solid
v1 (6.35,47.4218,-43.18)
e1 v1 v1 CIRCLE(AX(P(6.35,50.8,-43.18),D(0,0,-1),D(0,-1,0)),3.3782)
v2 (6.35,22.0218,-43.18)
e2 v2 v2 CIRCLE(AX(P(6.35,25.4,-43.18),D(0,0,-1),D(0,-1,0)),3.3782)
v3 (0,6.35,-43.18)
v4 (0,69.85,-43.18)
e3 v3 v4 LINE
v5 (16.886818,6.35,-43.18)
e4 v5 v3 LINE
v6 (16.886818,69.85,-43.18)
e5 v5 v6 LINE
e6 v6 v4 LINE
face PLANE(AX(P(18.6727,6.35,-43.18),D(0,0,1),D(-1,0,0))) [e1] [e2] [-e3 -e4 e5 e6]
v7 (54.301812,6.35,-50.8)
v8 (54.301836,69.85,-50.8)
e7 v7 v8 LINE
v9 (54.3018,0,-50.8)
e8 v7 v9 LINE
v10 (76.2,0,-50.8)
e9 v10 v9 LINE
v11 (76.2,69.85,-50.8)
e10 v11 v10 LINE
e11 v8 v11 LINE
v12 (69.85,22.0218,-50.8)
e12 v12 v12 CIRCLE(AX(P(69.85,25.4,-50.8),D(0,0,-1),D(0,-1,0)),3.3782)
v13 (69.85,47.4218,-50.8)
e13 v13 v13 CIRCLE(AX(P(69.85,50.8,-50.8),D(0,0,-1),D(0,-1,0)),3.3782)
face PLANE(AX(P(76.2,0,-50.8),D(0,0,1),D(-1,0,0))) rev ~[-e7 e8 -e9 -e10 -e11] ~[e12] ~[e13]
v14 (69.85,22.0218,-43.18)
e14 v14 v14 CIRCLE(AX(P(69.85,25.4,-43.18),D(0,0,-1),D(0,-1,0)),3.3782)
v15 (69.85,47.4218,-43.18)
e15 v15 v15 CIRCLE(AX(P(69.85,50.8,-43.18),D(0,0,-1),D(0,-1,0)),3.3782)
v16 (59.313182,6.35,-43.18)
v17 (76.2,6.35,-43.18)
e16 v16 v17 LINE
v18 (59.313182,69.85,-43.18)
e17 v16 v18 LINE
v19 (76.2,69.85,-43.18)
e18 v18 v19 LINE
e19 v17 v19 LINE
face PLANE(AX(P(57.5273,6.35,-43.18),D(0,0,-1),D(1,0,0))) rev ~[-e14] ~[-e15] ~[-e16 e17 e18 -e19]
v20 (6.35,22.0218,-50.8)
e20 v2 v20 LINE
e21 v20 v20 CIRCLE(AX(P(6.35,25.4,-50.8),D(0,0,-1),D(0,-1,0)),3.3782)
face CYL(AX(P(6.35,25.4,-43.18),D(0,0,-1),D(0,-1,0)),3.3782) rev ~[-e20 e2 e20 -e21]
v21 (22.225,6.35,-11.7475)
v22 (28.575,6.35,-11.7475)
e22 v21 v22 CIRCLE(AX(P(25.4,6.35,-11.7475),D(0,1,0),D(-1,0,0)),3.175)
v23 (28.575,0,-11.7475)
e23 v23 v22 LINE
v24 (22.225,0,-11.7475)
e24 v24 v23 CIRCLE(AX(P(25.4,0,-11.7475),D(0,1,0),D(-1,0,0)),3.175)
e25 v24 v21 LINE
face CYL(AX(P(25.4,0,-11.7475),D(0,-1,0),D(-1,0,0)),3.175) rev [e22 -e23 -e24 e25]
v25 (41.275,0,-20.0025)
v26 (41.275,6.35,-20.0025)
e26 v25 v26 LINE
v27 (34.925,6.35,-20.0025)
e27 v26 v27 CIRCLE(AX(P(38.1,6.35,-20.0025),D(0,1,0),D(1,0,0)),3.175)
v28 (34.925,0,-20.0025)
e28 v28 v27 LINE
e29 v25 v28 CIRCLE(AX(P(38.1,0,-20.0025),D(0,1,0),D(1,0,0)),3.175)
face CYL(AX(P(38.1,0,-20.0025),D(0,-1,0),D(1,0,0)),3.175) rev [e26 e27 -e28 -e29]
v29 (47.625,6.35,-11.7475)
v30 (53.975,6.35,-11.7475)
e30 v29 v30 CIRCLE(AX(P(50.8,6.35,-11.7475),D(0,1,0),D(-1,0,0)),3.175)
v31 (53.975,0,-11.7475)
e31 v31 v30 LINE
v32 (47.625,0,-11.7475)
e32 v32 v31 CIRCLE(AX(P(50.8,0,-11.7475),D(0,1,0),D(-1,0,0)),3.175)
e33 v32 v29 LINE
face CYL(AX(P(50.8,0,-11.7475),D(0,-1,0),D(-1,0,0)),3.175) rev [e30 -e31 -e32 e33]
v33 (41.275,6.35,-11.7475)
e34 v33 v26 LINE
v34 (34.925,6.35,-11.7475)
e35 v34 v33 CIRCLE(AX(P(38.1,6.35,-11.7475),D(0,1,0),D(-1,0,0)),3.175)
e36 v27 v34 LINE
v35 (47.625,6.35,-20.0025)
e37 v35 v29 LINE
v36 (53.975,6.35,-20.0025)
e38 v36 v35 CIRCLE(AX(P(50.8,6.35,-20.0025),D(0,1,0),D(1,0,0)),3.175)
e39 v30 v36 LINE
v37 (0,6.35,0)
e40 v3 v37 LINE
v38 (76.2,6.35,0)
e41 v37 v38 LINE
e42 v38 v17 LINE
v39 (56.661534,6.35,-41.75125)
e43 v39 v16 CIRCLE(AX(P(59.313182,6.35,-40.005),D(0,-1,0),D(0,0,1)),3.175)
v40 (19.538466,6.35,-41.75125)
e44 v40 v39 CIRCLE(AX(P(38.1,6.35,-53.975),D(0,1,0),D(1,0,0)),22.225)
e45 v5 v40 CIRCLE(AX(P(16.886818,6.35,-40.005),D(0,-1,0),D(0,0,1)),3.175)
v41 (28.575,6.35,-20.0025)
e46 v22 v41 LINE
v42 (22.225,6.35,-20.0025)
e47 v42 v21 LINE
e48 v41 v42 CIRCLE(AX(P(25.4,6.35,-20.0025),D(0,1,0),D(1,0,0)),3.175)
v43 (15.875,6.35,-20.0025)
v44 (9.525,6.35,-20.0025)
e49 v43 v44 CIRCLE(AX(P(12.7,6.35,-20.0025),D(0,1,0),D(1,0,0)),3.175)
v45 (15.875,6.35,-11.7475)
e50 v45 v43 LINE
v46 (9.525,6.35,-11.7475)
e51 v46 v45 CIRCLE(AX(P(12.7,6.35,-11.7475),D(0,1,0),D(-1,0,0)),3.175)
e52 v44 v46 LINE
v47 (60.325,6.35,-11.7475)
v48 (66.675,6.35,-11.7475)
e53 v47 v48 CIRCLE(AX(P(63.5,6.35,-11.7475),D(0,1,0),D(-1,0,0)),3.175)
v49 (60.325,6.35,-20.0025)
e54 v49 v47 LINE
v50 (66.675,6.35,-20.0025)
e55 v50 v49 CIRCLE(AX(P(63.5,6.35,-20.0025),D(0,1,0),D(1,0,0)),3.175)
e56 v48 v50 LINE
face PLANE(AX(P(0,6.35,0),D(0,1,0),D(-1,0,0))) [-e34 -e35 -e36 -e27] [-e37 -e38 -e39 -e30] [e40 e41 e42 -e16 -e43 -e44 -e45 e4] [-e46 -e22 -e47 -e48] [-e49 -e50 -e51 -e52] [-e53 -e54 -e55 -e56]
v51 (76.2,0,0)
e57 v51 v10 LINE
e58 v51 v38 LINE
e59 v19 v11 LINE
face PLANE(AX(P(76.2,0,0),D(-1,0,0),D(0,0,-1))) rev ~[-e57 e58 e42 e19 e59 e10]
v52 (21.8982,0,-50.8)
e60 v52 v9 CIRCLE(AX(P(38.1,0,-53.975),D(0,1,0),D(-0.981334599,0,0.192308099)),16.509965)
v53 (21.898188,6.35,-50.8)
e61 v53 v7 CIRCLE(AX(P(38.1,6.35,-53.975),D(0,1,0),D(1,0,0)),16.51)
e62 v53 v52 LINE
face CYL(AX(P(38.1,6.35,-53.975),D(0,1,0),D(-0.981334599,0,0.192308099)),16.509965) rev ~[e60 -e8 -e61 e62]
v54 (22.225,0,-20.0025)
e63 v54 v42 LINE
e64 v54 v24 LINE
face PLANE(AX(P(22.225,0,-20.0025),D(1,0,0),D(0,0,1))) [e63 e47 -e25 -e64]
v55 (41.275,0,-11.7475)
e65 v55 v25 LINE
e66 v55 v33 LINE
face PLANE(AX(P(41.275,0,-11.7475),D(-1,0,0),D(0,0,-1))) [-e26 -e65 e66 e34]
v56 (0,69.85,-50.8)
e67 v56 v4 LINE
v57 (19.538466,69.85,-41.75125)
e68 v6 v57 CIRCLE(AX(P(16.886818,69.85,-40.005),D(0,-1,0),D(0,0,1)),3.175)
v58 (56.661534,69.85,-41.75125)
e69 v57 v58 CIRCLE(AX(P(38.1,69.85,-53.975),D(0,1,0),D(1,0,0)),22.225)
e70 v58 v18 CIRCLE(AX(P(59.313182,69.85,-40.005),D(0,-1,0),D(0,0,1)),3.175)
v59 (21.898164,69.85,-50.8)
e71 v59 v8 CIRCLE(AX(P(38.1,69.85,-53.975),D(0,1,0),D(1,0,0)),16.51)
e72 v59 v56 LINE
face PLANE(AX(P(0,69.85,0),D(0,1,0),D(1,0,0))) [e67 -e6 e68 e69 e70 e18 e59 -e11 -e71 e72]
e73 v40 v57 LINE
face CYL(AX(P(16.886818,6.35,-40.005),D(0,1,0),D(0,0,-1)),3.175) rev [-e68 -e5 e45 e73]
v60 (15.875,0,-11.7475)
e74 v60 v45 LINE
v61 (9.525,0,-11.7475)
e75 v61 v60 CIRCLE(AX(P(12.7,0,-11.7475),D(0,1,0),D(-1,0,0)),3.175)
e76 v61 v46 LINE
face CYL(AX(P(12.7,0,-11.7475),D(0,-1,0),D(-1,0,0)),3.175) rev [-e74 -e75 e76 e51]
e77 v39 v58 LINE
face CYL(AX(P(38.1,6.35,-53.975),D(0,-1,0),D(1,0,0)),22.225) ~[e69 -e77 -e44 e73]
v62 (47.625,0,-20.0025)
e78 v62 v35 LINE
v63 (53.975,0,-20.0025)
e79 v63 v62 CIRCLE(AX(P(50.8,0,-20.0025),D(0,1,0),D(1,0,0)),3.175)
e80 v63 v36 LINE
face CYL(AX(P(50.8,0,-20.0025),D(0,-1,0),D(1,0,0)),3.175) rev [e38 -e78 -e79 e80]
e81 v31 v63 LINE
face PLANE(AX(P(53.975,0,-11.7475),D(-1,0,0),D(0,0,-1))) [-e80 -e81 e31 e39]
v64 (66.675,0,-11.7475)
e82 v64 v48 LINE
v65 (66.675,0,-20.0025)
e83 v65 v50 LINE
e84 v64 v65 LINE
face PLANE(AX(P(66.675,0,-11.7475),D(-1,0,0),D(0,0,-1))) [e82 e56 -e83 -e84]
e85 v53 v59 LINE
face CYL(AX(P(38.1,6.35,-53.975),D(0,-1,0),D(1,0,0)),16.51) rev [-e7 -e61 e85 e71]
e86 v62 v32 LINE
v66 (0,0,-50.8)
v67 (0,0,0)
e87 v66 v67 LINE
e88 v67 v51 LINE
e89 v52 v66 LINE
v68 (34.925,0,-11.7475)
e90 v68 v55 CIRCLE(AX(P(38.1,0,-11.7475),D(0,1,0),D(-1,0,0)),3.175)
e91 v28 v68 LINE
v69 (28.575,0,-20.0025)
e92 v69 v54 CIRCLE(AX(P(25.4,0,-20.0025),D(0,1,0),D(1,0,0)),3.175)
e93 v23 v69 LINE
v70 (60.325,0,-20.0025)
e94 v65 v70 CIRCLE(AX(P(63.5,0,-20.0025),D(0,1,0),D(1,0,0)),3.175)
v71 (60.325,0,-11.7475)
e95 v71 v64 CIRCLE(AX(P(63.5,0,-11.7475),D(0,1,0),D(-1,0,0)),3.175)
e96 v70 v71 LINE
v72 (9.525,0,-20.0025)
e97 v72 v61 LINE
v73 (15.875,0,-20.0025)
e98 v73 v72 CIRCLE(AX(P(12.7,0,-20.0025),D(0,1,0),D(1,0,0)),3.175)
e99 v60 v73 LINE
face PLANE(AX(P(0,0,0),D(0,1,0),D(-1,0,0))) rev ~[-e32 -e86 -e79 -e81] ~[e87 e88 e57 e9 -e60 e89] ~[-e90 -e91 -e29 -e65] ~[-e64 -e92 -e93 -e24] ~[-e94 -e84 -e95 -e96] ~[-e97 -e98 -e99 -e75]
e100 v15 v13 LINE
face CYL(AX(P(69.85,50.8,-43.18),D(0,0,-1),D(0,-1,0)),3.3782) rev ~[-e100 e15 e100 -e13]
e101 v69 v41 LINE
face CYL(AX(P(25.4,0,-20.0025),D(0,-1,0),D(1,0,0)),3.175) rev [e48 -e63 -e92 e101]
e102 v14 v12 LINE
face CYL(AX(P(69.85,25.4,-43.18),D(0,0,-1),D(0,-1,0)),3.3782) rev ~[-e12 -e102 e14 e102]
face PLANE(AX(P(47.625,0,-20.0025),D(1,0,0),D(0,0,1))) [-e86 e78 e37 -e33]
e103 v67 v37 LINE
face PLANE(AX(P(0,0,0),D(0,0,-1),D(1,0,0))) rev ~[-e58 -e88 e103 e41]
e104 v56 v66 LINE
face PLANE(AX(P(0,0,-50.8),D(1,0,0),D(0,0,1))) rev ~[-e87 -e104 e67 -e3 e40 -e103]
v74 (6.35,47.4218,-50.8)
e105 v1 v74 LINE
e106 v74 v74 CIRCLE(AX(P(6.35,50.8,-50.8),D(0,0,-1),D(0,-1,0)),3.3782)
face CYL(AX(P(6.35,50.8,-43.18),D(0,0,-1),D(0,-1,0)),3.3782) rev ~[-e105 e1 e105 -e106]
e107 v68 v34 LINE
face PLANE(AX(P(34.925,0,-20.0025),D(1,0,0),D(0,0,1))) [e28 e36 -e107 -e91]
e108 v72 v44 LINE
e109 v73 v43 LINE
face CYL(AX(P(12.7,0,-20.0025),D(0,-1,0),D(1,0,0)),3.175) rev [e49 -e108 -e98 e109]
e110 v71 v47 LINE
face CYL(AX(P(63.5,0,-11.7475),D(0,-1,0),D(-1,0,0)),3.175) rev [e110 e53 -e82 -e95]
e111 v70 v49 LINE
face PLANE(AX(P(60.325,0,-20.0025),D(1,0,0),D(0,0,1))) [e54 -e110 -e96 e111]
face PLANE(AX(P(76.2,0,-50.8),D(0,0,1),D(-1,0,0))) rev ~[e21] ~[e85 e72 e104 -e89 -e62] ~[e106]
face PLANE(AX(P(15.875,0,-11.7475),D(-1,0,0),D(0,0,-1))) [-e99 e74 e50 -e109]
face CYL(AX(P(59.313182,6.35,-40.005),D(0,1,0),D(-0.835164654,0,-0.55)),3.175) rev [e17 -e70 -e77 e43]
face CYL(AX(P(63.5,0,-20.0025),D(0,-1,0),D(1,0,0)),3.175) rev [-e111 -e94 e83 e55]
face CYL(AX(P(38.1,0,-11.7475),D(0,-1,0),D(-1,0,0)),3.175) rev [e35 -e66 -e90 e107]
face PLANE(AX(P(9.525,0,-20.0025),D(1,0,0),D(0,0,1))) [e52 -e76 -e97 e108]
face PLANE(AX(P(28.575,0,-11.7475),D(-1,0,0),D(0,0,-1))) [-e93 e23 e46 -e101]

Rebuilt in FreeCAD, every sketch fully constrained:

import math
import FreeCAD as App
import Part
import Sketcher
from FreeCAD import Vector
Q = App.Units.Quantity


def edges_at(feature, points):
    """Names of the edges that pass closest to the given points."""
    edges = feature.Shape.Edges
    near = lambda p: min(range(len(edges)), key=lambda i: edges[i].distToShape(Part.Vertex(*p))[0])
    return sorted({f"Edge{near(p) + 1}" for p in points})


def add_polygon(sketch, points):
    """Adds a closed chain of lines whose ends are joined by coincident constraints."""
    first, n = sketch.GeometryCount, len(points)
    for a, b in zip(points, points[1:] + points[:1]):
        sketch.addGeometry(Part.LineSegment(App.Vector(*a, 0), App.Vector(*b, 0)), False)
    for i in range(n):
        sketch.addConstraint(Sketcher.Constraint("Coincident", first + i, 2, first + (i + 1) % n, 1))

doc = App.newDocument("Part")
body = doc.addObject("PartDesign::Body", "Body")

sketch1 = doc.addObject("Sketcher::SketchObject", "Sketch")
body.addObject(sketch1)
sketch1.AttachmentSupport = (doc.XZ_Plane, [""])
sketch1.MapMode = "FlatFace"
add_polygon(sketch1, [(0, -50.8), (0, 0), (76.2, 0), (76.2, -50.8)])
sketch1.addGeometry(Part.LineSegment(Vector(66.7, -20, 0), Vector(66.7, -11.7, 0)), False)
sketch1.addGeometry(Part.ArcOfCircle(Part.Circle(Vector(63.5, -11.7, 0), Vector(0, 0, 1), 3.2), math.radians(0), math.radians(180)), False)
sketch1.addGeometry(Part.LineSegment(Vector(60.3, -11.7, 0), Vector(60.3, -20, 0)), False)
sketch1.addGeometry(Part.ArcOfCircle(Part.Circle(Vector(63.5, -20, 0), Vector(0, 0, 1), 3.2), math.radians(180), math.radians(360)), False)
sketch1.addGeometry(Part.LineSegment(Vector(54, -20, 0), Vector(54, -11.7, 0)), False)
sketch1.addGeometry(Part.ArcOfCircle(Part.Circle(Vector(50.8, -11.7, 0), Vector(0, 0, 1), 3.2), math.radians(0), math.radians(180)), False)
sketch1.addGeometry(Part.LineSegment(Vector(47.6, -11.7, 0), Vector(47.6, -20, 0)), False)
sketch1.addGeometry(Part.ArcOfCircle(Part.Circle(Vector(50.8, -20, 0), Vector(0, 0, 1), 3.2), math.radians(180), math.radians(360)), False)
sketch1.addGeometry(Part.LineSegment(Vector(41.3, -20, 0), Vector(41.3, -11.7, 0)), False)
sketch1.addGeometry(Part.ArcOfCircle(Part.Circle(Vector(38.1, -11.7, 0), Vector(0, 0, 1), 3.2), math.radians(0), math.radians(180)), False)
sketch1.addGeometry(Part.LineSegment(Vector(34.9, -11.7, 0), Vector(34.9, -20, 0)), False)
sketch1.addGeometry(Part.ArcOfCircle(Part.Circle(Vector(38.1, -20, 0), Vector(0, 0, 1), 3.2), math.radians(180), math.radians(360)), False)
sketch1.addGeometry(Part.LineSegment(Vector(28.6, -20, 0), Vector(28.6, -11.7, 0)), False)
sketch1.addGeometry(Part.ArcOfCircle(Part.Circle(Vector(25.4, -11.7, 0), Vector(0, 0, 1), 3.2), math.radians(0), math.radians(180)), False)
sketch1.addGeometry(Part.LineSegment(Vector(22.2, -11.7, 0), Vector(22.2, -20, 0)), False)
sketch1.addGeometry(Part.ArcOfCircle(Part.Circle(Vector(25.4, -20, 0), Vector(0, 0, 1), 3.2), math.radians(180), math.radians(360)), False)
sketch1.addGeometry(Part.LineSegment(Vector(15.9, -20, 0), Vector(15.9, -11.7, 0)), False)
sketch1.addGeometry(Part.ArcOfCircle(Part.Circle(Vector(12.7, -11.7, 0), Vector(0, 0, 1), 3.2), math.radians(0), math.radians(180)), False)
sketch1.addGeometry(Part.LineSegment(Vector(9.5, -11.7, 0), Vector(9.5, -20, 0)), False)
sketch1.addGeometry(Part.ArcOfCircle(Part.Circle(Vector(12.7, -20, 0), Vector(0, 0, 1), 3.2), math.radians(180), math.radians(360)), False)
sketch1.addConstraint([
    Sketcher.Constraint("Tangent", 4, 2, 5, 1),
    Sketcher.Constraint("Tangent", 5, 2, 6, 1),
    Sketcher.Constraint("Tangent", 6, 2, 7, 1),
    Sketcher.Constraint("Tangent", 7, 2, 4, 1),
    Sketcher.Constraint("Tangent", 8, 2, 9, 1),
    Sketcher.Constraint("Tangent", 9, 2, 10, 1),
    Sketcher.Constraint("Tangent", 10, 2, 11, 1),
    Sketcher.Constraint("Tangent", 11, 2, 8, 1),
    Sketcher.Constraint("Tangent", 12, 2, 13, 1),
    Sketcher.Constraint("Tangent", 13, 2, 14, 1),
    Sketcher.Constraint("Tangent", 14, 2, 15, 1),
    Sketcher.Constraint("Tangent", 15, 2, 12, 1),
    Sketcher.Constraint("Tangent", 16, 2, 17, 1),
    Sketcher.Constraint("Tangent", 17, 2, 18, 1),
    Sketcher.Constraint("Tangent", 18, 2, 19, 1),
    Sketcher.Constraint("Tangent", 19, 2, 16, 1),
    Sketcher.Constraint("Tangent", 20, 2, 21, 1),
    Sketcher.Constraint("Tangent", 21, 2, 22, 1),
    Sketcher.Constraint("Tangent", 22, 2, 23, 1),
    Sketcher.Constraint("Tangent", 23, 2, 20, 1),
    Sketcher.Constraint("Vertical", 0),
    Sketcher.Constraint("Horizontal", 1),
    Sketcher.Constraint("Vertical", 2),
    Sketcher.Constraint("Horizontal", 3),
    Sketcher.Constraint("Vertical", 4),
    Sketcher.Constraint("Vertical", 6),
    Sketcher.Constraint("Vertical", 8),
    Sketcher.Constraint("Vertical", 10),
    Sketcher.Constraint("Vertical", 12),
    Sketcher.Constraint("Vertical", 14),
    Sketcher.Constraint("Vertical", 16),
    Sketcher.Constraint("Vertical", 18),
    Sketcher.Constraint("Vertical", 20),
    Sketcher.Constraint("Vertical", 22),
    Sketcher.Constraint("Coincident", 0, 2, -1, 1),
    Sketcher.Constraint("Equal", 7, 9),
    Sketcher.Constraint("Equal", 11, 13),
    Sketcher.Constraint("Equal", 15, 17),
    Sketcher.Constraint("Equal", 19, 21),
    Sketcher.Constraint("Horizontal", 5, 3, 9, 3),
    Sketcher.Constraint("Horizontal", 7, 3, 11, 3),
    Sketcher.Constraint("Horizontal", 9, 3, 13, 3),
    Sketcher.Constraint("Horizontal", 11, 3, 15, 3),
    Sketcher.Constraint("Horizontal", 13, 3, 17, 3),
    Sketcher.Constraint("Horizontal", 15, 3, 19, 3),
    Sketcher.Constraint("Horizontal", 17, 3, 21, 3),
    Sketcher.Constraint("Horizontal", 19, 3, 23, 3),
    Sketcher.Constraint("DistanceX", 1, 1, 1, 2, Q("3 in")),
    Sketcher.Constraint("DistanceY", 0, 1, 0, 2, Q("2 in")),
    Sketcher.Constraint("DistanceX", -1, 1, 9, 3, Q("2 in")),
    Sketcher.Constraint("DistanceX", -1, 1, 17, 3, Q("1 in")),
    Sketcher.Constraint("Radius", 5, Q("0.125 in")),
    Sketcher.Constraint("DistanceX", 13, 3, 5, 3, Q("1 in")),
    Sketcher.Constraint("DistanceX", 21, 3, 13, 3, Q("1 in")),
    Sketcher.Constraint("DistanceX", -1, 1, 21, 3, Q("0.5 in")),
    Sketcher.Constraint("DistanceY", 4, 1, 4, 2, Q("0.325 in")),
    Sketcher.Constraint("DistanceY", 5, 3, -1, 1, Q("0.4625 in")),
])
pad1 = doc.addObject("PartDesign::Pad", "Pad")
body.addObject(pad1)
pad1.Profile = sketch1
pad1.Length = Q("0.25 in")
pad1.Reversed = True

sketch2 = doc.addObject("Sketcher::SketchObject", "Sketch001")
body.addObject(sketch2)
sketch2.AttachmentSupport = (doc.XZ_Plane, [""])
sketch2.MapMode = "FlatFace"
sketch2.AttachmentOffset = App.Placement(Vector(0, 0, -0.25 * 25.4), App.Rotation())
sketch2.addGeometry([
    Part.LineSegment(Vector(76, -43, 0), Vector(76, -51, 0)),
    Part.LineSegment(Vector(76, -51, 0), Vector(54, -51, 0)),
    Part.ArcOfCircle(Part.Circle(Vector(38, -54, 0), Vector(0, 0, 1), 17), math.radians(11), math.radians(169)),
    Part.LineSegment(Vector(22, -51, 0), Vector(0, -51, 0)),
    Part.LineSegment(Vector(0, -51, 0), Vector(0, -43, 0)),
    Part.LineSegment(Vector(0, -43, 0), Vector(19, -43, 0)),
    Part.ArcOfCircle(Part.Circle(Vector(38, -54, 0), Vector(0, 0, 1), 22), math.radians(29), math.radians(151)),
    Part.LineSegment(Vector(58, -43, 0), Vector(76, -43, 0)),
], False)
sketch2.addConstraint([
    Sketcher.Constraint("Coincident", 0, 2, 1, 1),
    Sketcher.Constraint("Coincident", 1, 2, 2, 1),
    Sketcher.Constraint("Coincident", 2, 2, 3, 1),
    Sketcher.Constraint("Coincident", 3, 2, 4, 1),
    Sketcher.Constraint("Coincident", 4, 2, 5, 1),
    Sketcher.Constraint("Coincident", 5, 2, 6, 2),
    Sketcher.Constraint("Coincident", 6, 1, 7, 1),
    Sketcher.Constraint("Coincident", 7, 2, 0, 1),
    Sketcher.Constraint("Vertical", 0),
    Sketcher.Constraint("Horizontal", 1),
    Sketcher.Constraint("Horizontal", 3),
    Sketcher.Constraint("Vertical", 4),
    Sketcher.Constraint("Horizontal", 5),
    Sketcher.Constraint("Horizontal", 7),
    Sketcher.Constraint("Coincident", 6, 3, 2, 3),
    Sketcher.Constraint("PointOnObject", 3, 2, -2),
    Sketcher.Constraint("Horizontal", 1, 2, 2, 2),
    Sketcher.Constraint("Horizontal", 5, 2, 6, 1),
    Sketcher.Constraint("Equal", 1, 3),
    Sketcher.Constraint("Radius", 2, Q("0.65 in")),
    Sketcher.Constraint("DistanceY", 0, 2, 0, 1, Q("0.3 in")),
    Sketcher.Constraint("Radius", 6, Q("0.875 in")),
    Sketcher.Constraint("DistanceX", -1, 1, 2, 3, Q("1.5 in")),
    Sketcher.Constraint("DistanceY", 0, 2, -1, 1, Q("2 in")),
    Sketcher.Constraint("DistanceY", 2, 3, 0, 2, Q("0.125 in")),
])
pad2 = doc.addObject("PartDesign::Pad", "Pad001")
body.addObject(pad2)
pad2.Profile = sketch2
pad2.Length = Q("2.5 in")
pad2.Reversed = True

sketch3 = doc.addObject("Sketcher::SketchObject", "Sketch002")
body.addObject(sketch3)
sketch3.AttachmentSupport = (doc.XY_Plane, [""])
sketch3.MapMode = "FlatFace"
sketch3.AttachmentOffset = App.Placement(Vector(0, 0, -1.7 * 25.4), App.Rotation())
sketch3.addGeometry([
    Part.Circle(Vector(6.3, 50.8, 0), Vector(0, 0, 1), 3.4),
    Part.Circle(Vector(6.3, 25.4, 0), Vector(0, 0, 1), 3.4),
    Part.Circle(Vector(69.8, 25.4, 0), Vector(0, 0, 1), 3.4),
    Part.Circle(Vector(69.8, 50.8, 0), Vector(0, 0, 1), 3.4),
], False)
sketch3.addConstraint([
    Sketcher.Constraint("Equal", 0, 1),
    Sketcher.Constraint("Equal", 1, 2),
    Sketcher.Constraint("Equal", 2, 3),
    Sketcher.Constraint("Horizontal", 1, 3, 2, 3),
    Sketcher.Constraint("Horizontal", 0, 3, 3, 3),
    Sketcher.Constraint("Vertical", 0, 3, 1, 3),
    Sketcher.Constraint("Vertical", 2, 3, 3, 3),
    Sketcher.Constraint("Diameter", 0, Q("0.266 in")),
    Sketcher.Constraint("DistanceY", -1, 1, 0, 3, Q("2 in")),
    Sketcher.Constraint("DistanceY", -1, 1, 1, 3, Q("1 in")),
    Sketcher.Constraint("DistanceX", 1, 3, 2, 3, Q("2.5 in")),
    Sketcher.Constraint("DistanceX", -1, 1, 0, 3, Q("0.25 in")),
])
doc.recompute()
hole = doc.addObject("PartDesign::Hole", "Hole")
body.addObject(hole)
hole.Profile = sketch3
hole.ThreadType = "None"
hole.Diameter = Q("0.266 in")
hole.DepthType = "ThroughAll"
doc.recompute()

fillet = doc.addObject("PartDesign::Fillet", "Fillet")
body.addObject(fillet)
fillet.Base = (hole, edges_at(hole, [(18.673, 38.1, -43.18), (57.527, 38.1, -43.18)]))
fillet.Radius = Q("0.125 in")

sketch4 = doc.addObject("Sketcher::SketchObject", "Sketch003")
body.addObject(sketch4)
sketch4.AttachmentSupport = (doc.XZ_Plane, [""])
sketch4.MapMode = "FlatFace"
sketch4.AttachmentOffset = App.Placement(Vector(0, 0, -0.25 * 25.4), App.Rotation())
sketch4.addGeometry(Part.Circle(Vector(38, -54, 0), Vector(0, 0, 1), 17), False)
sketch4.addConstraint([
    Sketcher.Constraint("Diameter", 0, Q("1.3 in")),
    Sketcher.Constraint("DistanceX", -1, 1, 0, 3, Q("1.5 in")),
    Sketcher.Constraint("DistanceY", 0, 3, -1, 1, Q("2.125 in")),
])
pocket1 = doc.addObject("PartDesign::Pocket", "Pocket")
body.addObject(pocket1)
pocket1.Profile = sketch4
pocket1.Length = Q("1 in")
pocket1.Reversed = True

doc.recompute()
